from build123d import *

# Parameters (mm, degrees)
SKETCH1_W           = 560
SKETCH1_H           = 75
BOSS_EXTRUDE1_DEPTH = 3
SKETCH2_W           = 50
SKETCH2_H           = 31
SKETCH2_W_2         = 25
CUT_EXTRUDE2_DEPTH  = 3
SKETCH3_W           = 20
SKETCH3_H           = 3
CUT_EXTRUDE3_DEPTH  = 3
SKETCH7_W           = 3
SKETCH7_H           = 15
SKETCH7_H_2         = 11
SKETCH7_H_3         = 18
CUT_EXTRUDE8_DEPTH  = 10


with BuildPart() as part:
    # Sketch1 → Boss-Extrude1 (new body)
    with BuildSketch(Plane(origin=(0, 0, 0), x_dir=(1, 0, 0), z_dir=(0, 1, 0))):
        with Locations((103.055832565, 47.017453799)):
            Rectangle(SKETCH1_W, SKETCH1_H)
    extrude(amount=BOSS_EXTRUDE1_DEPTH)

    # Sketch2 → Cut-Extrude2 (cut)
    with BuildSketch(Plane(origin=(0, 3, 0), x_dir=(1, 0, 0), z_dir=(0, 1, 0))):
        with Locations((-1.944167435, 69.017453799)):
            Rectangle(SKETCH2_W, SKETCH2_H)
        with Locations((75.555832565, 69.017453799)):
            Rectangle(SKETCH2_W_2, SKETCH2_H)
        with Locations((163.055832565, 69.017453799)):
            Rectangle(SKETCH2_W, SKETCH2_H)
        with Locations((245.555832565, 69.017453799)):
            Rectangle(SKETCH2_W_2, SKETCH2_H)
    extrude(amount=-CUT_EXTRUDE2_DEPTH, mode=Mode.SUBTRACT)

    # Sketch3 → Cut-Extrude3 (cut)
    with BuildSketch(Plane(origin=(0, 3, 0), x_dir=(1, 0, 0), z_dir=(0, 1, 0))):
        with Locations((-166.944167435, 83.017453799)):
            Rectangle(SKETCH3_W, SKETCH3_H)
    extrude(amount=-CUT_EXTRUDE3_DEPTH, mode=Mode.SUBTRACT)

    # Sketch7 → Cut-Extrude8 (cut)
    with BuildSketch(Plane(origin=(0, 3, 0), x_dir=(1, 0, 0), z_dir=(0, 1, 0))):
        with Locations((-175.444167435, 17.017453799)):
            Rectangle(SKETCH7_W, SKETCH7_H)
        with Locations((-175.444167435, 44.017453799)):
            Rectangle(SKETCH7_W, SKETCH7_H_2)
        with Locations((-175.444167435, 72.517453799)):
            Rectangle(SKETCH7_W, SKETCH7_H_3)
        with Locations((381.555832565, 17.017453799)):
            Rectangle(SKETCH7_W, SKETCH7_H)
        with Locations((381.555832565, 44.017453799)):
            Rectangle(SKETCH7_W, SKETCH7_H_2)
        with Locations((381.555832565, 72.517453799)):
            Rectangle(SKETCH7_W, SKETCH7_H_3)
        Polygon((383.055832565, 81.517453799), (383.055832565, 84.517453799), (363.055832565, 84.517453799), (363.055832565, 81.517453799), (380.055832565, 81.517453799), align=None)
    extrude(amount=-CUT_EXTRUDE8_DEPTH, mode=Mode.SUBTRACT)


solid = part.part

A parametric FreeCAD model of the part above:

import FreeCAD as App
import Part
import Sketcher
Q = App.Units.Quantity


def add_polygon(sketch, points):
    """Adds a closed chain of lines whose ends are joined by coincident constraints."""
    first, n = sketch.GeometryCount, len(points)
    for a, b in zip(points, points[1:] + points[:1]):
        sketch.addGeometry(Part.LineSegment(App.Vector(*a, 0), App.Vector(*b, 0)), False)
    for i in range(n):
        sketch.addConstraint(Sketcher.Constraint("Coincident", first + i, 2, first + (i + 1) % n, 1))

doc = App.newDocument("Part")
body = doc.addObject("PartDesign::Body", "Body")

# Sketch on XZ plane
sketch1 = body.newObject("Sketcher::SketchObject", "Sketch")
sketch1.AttachmentSupport = (doc.getObject("XZ_Plane"), [""])
sketch1.MapMode = "FlatFace"
add_polygon(sketch1, [(-177, -85), (-177, -10), (383, -10), (383, -85)])  # lines 0-3
sketch1.addConstraint([
    Sketcher.Constraint("Vertical", 0),
    Sketcher.Constraint("Horizontal", 1),
    Sketcher.Constraint("Vertical", 2),
    Sketcher.Constraint("Horizontal", 3),
    Sketcher.Constraint("DistanceX", 1, 1, 1, 2, Q("560 mm")),
    Sketcher.Constraint("DistanceY", 0, 1, 0, 2, Q("75 mm")),
    Sketcher.Constraint("DistanceX", 0, 2, -1, 1, Q("176.944167 mm")),
    Sketcher.Constraint("DistanceY", 0, 2, -1, 1, Q("9.517454 mm")),
])
pad1 = body.newObject("PartDesign::Pad", "Pad")
pad1.Profile = sketch1
pad1.Length = 3
pad1.Reversed = True

# Sketch on XZ plane
sketch2 = body.newObject("Sketcher::SketchObject", "Sketch001")
sketch2.AttachmentSupport = (doc.getObject("XZ_Plane"), [""])
sketch2.MapMode = "FlatFace"
sketch2.AttachmentOffset = App.Placement(App.Vector(0, 0, -3), App.Rotation())
add_polygon(sketch2, [(-27, -85), (-27, -54), (23, -54), (23, -85)])  # lines 0-3
add_polygon(sketch2, [(63, -85), (63, -54), (88, -54), (88, -85)])  # lines 4-7
add_polygon(sketch2, [(138, -85), (138, -54), (188, -54), (188, -85)])  # lines 8-11
add_polygon(sketch2, [(233, -85), (233, -54), (258, -54), (258, -85)])  # lines 12-15
sketch2.addConstraint([
    Sketcher.Constraint("Vertical", 0),
    Sketcher.Constraint("Horizontal", 1),
    Sketcher.Constraint("Vertical", 2),
    Sketcher.Constraint("Horizontal", 3),
    Sketcher.Constraint("Vertical", 4),
    Sketcher.Constraint("Horizontal", 5),
    Sketcher.Constraint("Vertical", 6),
    Sketcher.Constraint("Horizontal", 7),
    Sketcher.Constraint("Vertical", 8),
    Sketcher.Constraint("Horizontal", 9),
    Sketcher.Constraint("Vertical", 10),
    Sketcher.Constraint("Horizontal", 11),
    Sketcher.Constraint("Vertical", 12),
    Sketcher.Constraint("Horizontal", 13),
    Sketcher.Constraint("Vertical", 14),
    Sketcher.Constraint("Horizontal", 15),
    Sketcher.Constraint("Horizontal", 1, 2, 4, 2),
    Sketcher.Constraint("Horizontal", 3, 2, 6, 2),
    Sketcher.Constraint("Horizontal", 5, 2, 8, 2),
    Sketcher.Constraint("Horizontal", 7, 2, 10, 2),
    Sketcher.Constraint("Horizontal", 9, 2, 12, 2),
    Sketcher.Constraint("Horizontal", 11, 2, 14, 2),
    Sketcher.Constraint("Equal", 3, 9),
    Sketcher.Constraint("Equal", 7, 13),
    Sketcher.Constraint("DistanceX", 1, 1, 1, 2, Q("50 mm")),
    Sketcher.Constraint("DistanceX", 5, 1, 5, 2, Q("25 mm")),
    Sketcher.Constraint("DistanceY", 0, 1, 0, 2, Q("31 mm")),
    Sketcher.Constraint("DistanceX", 1, 2, 4, 2, Q("40 mm")),
    Sketcher.Constraint("DistanceX", 5, 2, 8, 2, Q("50 mm")),
    Sketcher.Constraint("DistanceX", 9, 2, 12, 2, Q("45 mm")),
    Sketcher.Constraint("DistanceX", 0, 2, -1, 1, Q("26.944167 mm")),
    Sketcher.Constraint("DistanceY", 0, 2, -1, 1, Q("53.517454 mm")),
])
pocket1 = body.newObject("PartDesign::Pocket", "Pocket")
pocket1.Profile = sketch2
pocket1.Length = 3
pocket1.Reversed = True

# Sketch on XZ plane
sketch3 = body.newObject("Sketcher::SketchObject", "Sketch002")
sketch3.AttachmentSupport = (doc.getObject("XZ_Plane"), [""])
sketch3.MapMode = "FlatFace"
sketch3.AttachmentOffset = App.Placement(App.Vector(0, 0, -3), App.Rotation())
add_polygon(sketch3, [(-176.9, -84.5), (-176.9, -81.5), (-156.9, -81.5), (-156.9, -84.5)])  # lines 0-3
sketch3.addConstraint([
    Sketcher.Constraint("Vertical", 0),
    Sketcher.Constraint("Horizontal", 1),
    Sketcher.Constraint("Vertical", 2),
    Sketcher.Constraint("Horizontal", 3),
    Sketcher.Constraint("DistanceX", 1, 1, 1, 2, Q("20 mm")),
    Sketcher.Constraint("DistanceY", 0, 1, 0, 2, Q("3 mm")),
    Sketcher.Constraint("DistanceX", 0, 2, -1, 1, Q("176.944167 mm")),
    Sketcher.Constraint("DistanceY", 0, 2, -1, 1, Q("81.517454 mm")),
])
pocket2 = body.newObject("PartDesign::Pocket", "Pocket001")
pocket2.Profile = sketch3
pocket2.Length = 3
pocket2.Reversed = True

# Sketch on XZ plane
sketch4 = body.newObject("Sketcher::SketchObject", "Sketch003")
sketch4.AttachmentSupport = (doc.getObject("XZ_Plane"), [""])
sketch4.MapMode = "FlatFace"
sketch4.AttachmentOffset = App.Placement(App.Vector(0, 0, -3), App.Rotation())
add_polygon(sketch4, [(-176.9, -24.5), (-176.9, -9.5), (-173.9, -9.5), (-173.9, -24.5)])  # lines 0-3
add_polygon(sketch4, [(-176.9, -49.5), (-176.9, -38.5), (-173.9, -38.5), (-173.9, -49.5)])  # lines 4-7
add_polygon(sketch4, [(-176.9, -81.5), (-176.9, -63.5), (-173.9, -63.5), (-173.9, -81.5)])  # lines 8-11
add_polygon(sketch4, [(380.1, -24.5), (380.1, -9.5), (383.1, -9.5), (383.1, -24.5)])  # lines 12-15
add_polygon(sketch4, [(380.1, -49.5), (380.1, -38.5), (383.1, -38.5), (383.1, -49.5)])  # lines 16-19
add_polygon(sketch4, [(380.1, -81.5), (380.1, -63.5), (383.1, -63.5), (383.1, -84.5), (363.1, -84.5), (363.1, -81.5)])  # lines 20-25
sketch4.addConstraint([
    Sketcher.Constraint("Vertical", 0),
    Sketcher.Constraint("Horizontal", 1),
    Sketcher.Constraint("Vertical", 2),
    Sketcher.Constraint("Horizontal", 3),
    Sketcher.Constraint("Vertical", 4),
    Sketcher.Constraint("Horizontal", 5),
    Sketcher.Constraint("Vertical", 6),
    Sketcher.Constraint("Horizontal", 7),
    Sketcher.Constraint("Vertical", 8),
    Sketcher.Constraint("Horizontal", 9),
    Sketcher.Constraint("Vertical", 10),
    Sketcher.Constraint("Horizontal", 11),
    Sketcher.Constraint("Vertical", 12),
    Sketcher.Constraint("Horizontal", 13),
    Sketcher.Constraint("Vertical", 14),
    Sketcher.Constraint("Horizontal", 15),
    Sketcher.Constraint("Vertical", 16),
    Sketcher.Constraint("Horizontal", 17),
    Sketcher.Constraint("Vertical", 18),
    Sketcher.Constraint("Horizontal", 19),
    Sketcher.Constraint("Vertical", 20),
    Sketcher.Constraint("Horizontal", 21),
    Sketcher.Constraint("Vertical", 22),
    Sketcher.Constraint("Horizontal", 23),
    Sketcher.Constraint("Vertical", 24),
    Sketcher.Constraint("Horizontal", 25),
    Sketcher.Constraint("Horizontal", 1, 2, 12, 2),
    Sketcher.Constraint("Horizontal", 3, 2, 14, 2),
    Sketcher.Constraint("Horizontal", 5, 2, 16, 2),
    Sketcher.Constraint("Horizontal", 7, 2, 18, 2),
    Sketcher.Constraint("Horizontal", 9, 2, 20, 2),
    Sketcher.Constraint("Horizontal", 11, 2, 24, 2),
    Sketcher.Constraint("Vertical", 3, 2, 4, 2),
    Sketcher.Constraint("Vertical", 2, 2, 5, 2),
    Sketcher.Constraint("Vertical", 7, 2, 8, 2),
    Sketcher.Constraint("Vertical", 6, 2, 9, 2),
    Sketcher.Constraint("Vertical", 15, 2, 16, 2),
    Sketcher.Constraint("Vertical", 14, 2, 17, 2),
    Sketcher.Constraint("Vertical", 19, 2, 20, 2),
    Sketcher.Constraint("Vertical", 18, 2, 21, 2),
    Sketcher.Constraint("Equal", 11, 13),
    Sketcher.Constraint("Equal", 21, 24),
    Sketcher.Constraint("DistanceX", 1, 1, 1, 2, Q("3 mm")),
    Sketcher.Constraint("DistanceX", 23, 2, 23, 1, Q("20 mm")),
    Sketcher.Constraint("DistanceY", 0, 1, 0, 2, Q("15 mm")),
    Sketcher.Constraint("DistanceY", 4, 1, 4, 2, Q("11 mm")),
    Sketcher.Constraint("DistanceY", 8, 1, 8, 2, Q("18 mm")),
    Sketcher.Constraint("DistanceY", 4, 2, 3, 2, Q("14 mm")),
    Sketcher.Constraint("DistanceY", 8, 2, 7, 2, Q("14 mm")),
    Sketcher.Constraint("DistanceX", 1, 2, 12, 2, Q("554 mm")),
    Sketcher.Constraint("DistanceX", 0, 2, -1, 1, Q("176.944167 mm")),
    Sketcher.Constraint("DistanceY", 0, 2, -1, 1, Q("9.517454 mm")),
])
pocket3 = body.newObject("PartDesign::Pocket", "Pocket002")
pocket3.Profile = sketch4
pocket3.Length = 10
pocket3.Reversed = True

doc.recompute()
